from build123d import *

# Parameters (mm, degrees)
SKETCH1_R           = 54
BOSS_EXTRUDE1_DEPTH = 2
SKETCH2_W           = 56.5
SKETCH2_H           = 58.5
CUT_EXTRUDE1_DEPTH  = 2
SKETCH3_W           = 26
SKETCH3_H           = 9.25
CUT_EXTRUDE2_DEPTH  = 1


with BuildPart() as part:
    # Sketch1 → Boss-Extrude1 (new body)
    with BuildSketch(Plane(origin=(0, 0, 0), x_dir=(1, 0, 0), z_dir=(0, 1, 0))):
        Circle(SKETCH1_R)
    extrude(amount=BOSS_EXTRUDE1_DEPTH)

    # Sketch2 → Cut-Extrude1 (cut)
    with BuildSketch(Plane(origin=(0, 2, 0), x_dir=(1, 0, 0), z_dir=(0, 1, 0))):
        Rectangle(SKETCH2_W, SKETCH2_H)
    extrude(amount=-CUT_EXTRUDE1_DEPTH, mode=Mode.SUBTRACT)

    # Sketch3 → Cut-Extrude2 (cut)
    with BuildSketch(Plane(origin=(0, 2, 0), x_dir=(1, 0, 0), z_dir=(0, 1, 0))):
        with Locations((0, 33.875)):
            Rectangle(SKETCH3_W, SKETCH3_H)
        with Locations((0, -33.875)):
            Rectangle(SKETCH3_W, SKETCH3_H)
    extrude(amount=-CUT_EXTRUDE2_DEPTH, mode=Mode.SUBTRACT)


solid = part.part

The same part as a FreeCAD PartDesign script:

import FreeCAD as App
import Part
import Sketcher
Q = App.Units.Quantity


def add_polygon(sketch, points):
    """Adds a closed chain of lines whose ends are joined by coincident constraints."""
    first, n = sketch.GeometryCount, len(points)
    for a, b in zip(points, points[1:] + points[:1]):
        sketch.addGeometry(Part.LineSegment(App.Vector(*a, 0), App.Vector(*b, 0)), False)
    for i in range(n):
        sketch.addConstraint(Sketcher.Constraint("Coincident", first + i, 2, first + (i + 1) % n, 1))

doc = App.newDocument("Part")
body = doc.addObject("PartDesign::Body", "Body")

sketch1 = doc.addObject("Sketcher::SketchObject", "Sketch")
body.addObject(sketch1)
sketch1.AttachmentSupport = (doc.XZ_Plane, [""])
sketch1.MapMode = "FlatFace"
sketch1.addGeometry(Part.Circle(App.Vector(0, 0, 0), App.Vector(0, 0, 1), 54), False)
sketch1.addConstraint(Sketcher.Constraint("Coincident", 0, 3, -1, 1))
sketch1.addConstraint(Sketcher.Constraint("Diameter", 0, Q("108 mm")))
pad1 = doc.addObject("PartDesign::Pad", "Pad")
body.addObject(pad1)
pad1.Profile = sketch1
pad1.Length = 2
pad1.Reversed = True

sketch2 = doc.addObject("Sketcher::SketchObject", "Sketch001")
body.addObject(sketch2)
sketch2.AttachmentSupport = (doc.XZ_Plane, [""])
sketch2.MapMode = "FlatFace"
sketch2.AttachmentOffset = App.Placement(App.Vector(0, 0, -2), App.Rotation())
add_polygon(sketch2, [(-28, -29), (-28, 29), (28, 29), (28, -29)])
sketch2.addConstraint(Sketcher.Constraint("Vertical", 0))
sketch2.addConstraint(Sketcher.Constraint("Horizontal", 1))
sketch2.addConstraint(Sketcher.Constraint("Vertical", 2))
sketch2.addConstraint(Sketcher.Constraint("Horizontal", 3))
sketch2.addConstraint(Sketcher.Constraint("Symmetric", 0, 2, 2, 2, -1, 1))
sketch2.addConstraint(Sketcher.Constraint("DistanceX", 1, 1, 1, 2, Q("56.5 mm")))
sketch2.addConstraint(Sketcher.Constraint("DistanceY", 0, 1, 0, 2, Q("58.5 mm")))
pocket1 = doc.addObject("PartDesign::Pocket", "Pocket")
body.addObject(pocket1)
pocket1.Profile = sketch2
pocket1.Length = 2
pocket1.Reversed = True

sketch3 = doc.addObject("Sketcher::SketchObject", "Sketch002")
body.addObject(sketch3)
sketch3.AttachmentSupport = (doc.XZ_Plane, [""])
sketch3.MapMode = "FlatFace"
sketch3.AttachmentOffset = App.Placement(App.Vector(0, 0, -2), App.Rotation())
add_polygon(sketch3, [(-13, -38), (-13, -29), (13, -29), (13, -38)])
add_polygon(sketch3, [(-13, 29), (-13, 38), (13, 38), (13, 29)])
sketch3.addConstraint(Sketcher.Constraint("Vertical", 0))
sketch3.addConstraint(Sketcher.Constraint("Horizontal", 1))
sketch3.addConstraint(Sketcher.Constraint("Vertical", 2))
sketch3.addConstraint(Sketcher.Constraint("Horizontal", 3))
sketch3.addConstraint(Sketcher.Constraint("Vertical", 4))
sketch3.addConstraint(Sketcher.Constraint("Horizontal", 5))
sketch3.addConstraint(Sketcher.Constraint("Vertical", 6))
sketch3.addConstraint(Sketcher.Constraint("Horizontal", 7))
sketch3.addConstraint(Sketcher.Constraint("Symmetric", 2, 2, 4, 2, -1, 1))
sketch3.addConstraint(Sketcher.Constraint("Symmetric", 0, 2, 6, 2, -1, 1))
sketch3.addConstraint(Sketcher.Constraint("Vertical", 3, 2, 4, 2))
sketch3.addConstraint(Sketcher.Constraint("DistanceX", 1, 1, 1, 2, Q("26 mm")))
sketch3.addConstraint(Sketcher.Constraint("DistanceY", 3, 2, 4, 2, Q("77 mm")))
sketch3.addConstraint(Sketcher.Constraint("DistanceY", 0, 1, 0, 2, Q("9.25 mm")))
pocket2 = doc.addObject("PartDesign::Pocket", "Pocket001")
body.addObject(pocket2)
pocket2.Profile = sketch3
pocket2.Length = 1
pocket2.Reversed = True

doc.recompute()
